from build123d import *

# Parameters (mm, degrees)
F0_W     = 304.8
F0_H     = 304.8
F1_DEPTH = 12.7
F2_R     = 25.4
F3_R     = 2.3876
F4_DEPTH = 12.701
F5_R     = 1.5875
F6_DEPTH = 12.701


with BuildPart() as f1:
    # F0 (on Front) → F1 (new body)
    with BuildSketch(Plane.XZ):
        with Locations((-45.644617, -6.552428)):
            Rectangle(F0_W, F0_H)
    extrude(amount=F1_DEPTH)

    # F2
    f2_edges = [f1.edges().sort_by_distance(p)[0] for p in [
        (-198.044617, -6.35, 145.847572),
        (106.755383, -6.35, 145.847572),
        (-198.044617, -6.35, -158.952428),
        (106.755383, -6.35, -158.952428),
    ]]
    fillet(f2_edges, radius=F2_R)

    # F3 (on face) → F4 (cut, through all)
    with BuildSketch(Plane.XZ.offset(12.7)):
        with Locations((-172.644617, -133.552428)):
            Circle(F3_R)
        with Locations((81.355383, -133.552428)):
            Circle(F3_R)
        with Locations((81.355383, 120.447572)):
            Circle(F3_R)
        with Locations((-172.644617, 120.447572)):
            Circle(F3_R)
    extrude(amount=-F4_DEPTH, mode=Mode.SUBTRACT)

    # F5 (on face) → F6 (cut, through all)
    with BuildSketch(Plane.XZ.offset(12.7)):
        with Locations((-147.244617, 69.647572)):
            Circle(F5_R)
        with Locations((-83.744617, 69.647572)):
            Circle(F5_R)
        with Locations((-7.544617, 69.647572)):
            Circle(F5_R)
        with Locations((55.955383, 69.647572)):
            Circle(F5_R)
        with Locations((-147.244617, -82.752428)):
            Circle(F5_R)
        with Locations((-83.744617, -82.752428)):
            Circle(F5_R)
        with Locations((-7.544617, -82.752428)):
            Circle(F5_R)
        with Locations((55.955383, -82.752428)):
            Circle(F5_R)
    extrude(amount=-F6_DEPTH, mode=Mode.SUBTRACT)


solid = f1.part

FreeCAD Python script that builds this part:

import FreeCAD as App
import Part
import Sketcher
Q = App.Units.Quantity


def edges_at(feature, points):
    """Names of the edges that pass closest to the given points."""
    edges = feature.Shape.Edges
    near = lambda p: min(range(len(edges)), key=lambda i: edges[i].distToShape(Part.Vertex(*p))[0])
    return sorted({f"Edge{near(p) + 1}" for p in points})

doc = App.newDocument("Part")
body = doc.addObject("PartDesign::Body", "Body")

# Sketch on XZ plane
sketch1 = body.newObject("Sketcher::SketchObject", "Sketch")
sketch1.AttachmentSupport = (doc.getObject("XZ_Plane"), [""])
sketch1.MapMode = "FlatFace"
sketch1.addGeometry([
    Part.LineSegment(App.Vector(-198.044617, 145.847572, 0), App.Vector(-198.044617, -158.952428, 0)),
    Part.LineSegment(App.Vector(-198.044617, -158.952428, 0), App.Vector(106.755383, -158.952428, 0)),
    Part.LineSegment(App.Vector(106.755383, -158.952428, 0), App.Vector(106.755383, 145.847572, 0)),
    Part.LineSegment(App.Vector(106.755383, 145.847572, 0), App.Vector(-198.044617, 145.847572, 0)),
], False)
sketch1.addConstraint([
    Sketcher.Constraint("Coincident", 0, 2, 1, 1),
    Sketcher.Constraint("Coincident", 1, 2, 2, 1),
    Sketcher.Constraint("Coincident", 2, 2, 3, 1),
    Sketcher.Constraint("Coincident", 3, 2, 0, 1),
    Sketcher.Constraint("Vertical", 0),
    Sketcher.Constraint("Horizontal", 1),
    Sketcher.Constraint("Vertical", 2),
    Sketcher.Constraint("Horizontal", 3),
    Sketcher.Constraint("Equal", 3, 0),
    Sketcher.Constraint("DistanceX", 1, 1, 1, 2, Q("12 in")),
    Sketcher.Constraint("DistanceY", 0, 2, -1, 1, Q("158.952428 mm")),
    Sketcher.Constraint("DistanceX", 0, 2, -1, 1, Q("198.044617 mm")),
])
pad1 = body.newObject("PartDesign::Pad", "Pad")
pad1.Profile = sketch1
pad1.Length = Q("0.5 in")
doc.recompute()

fillet = body.newObject("PartDesign::Fillet", "Fillet")
fillet.Base = (pad1, edges_at(pad1, [
    (-198.045, -6.35, 145.848),
    (106.755, -6.35, 145.848),
    (-198.045, -6.35, -158.952),
    (106.755, -6.35, -158.952),
]))
fillet.Radius = Q("1 in")

# Sketch on XZ plane
sketch2 = body.newObject("Sketcher::SketchObject", "Sketch001")
sketch2.AttachmentSupport = (doc.getObject("XZ_Plane"), [""])
sketch2.MapMode = "FlatFace"
sketch2.AttachmentOffset = App.Placement(App.Vector(0, 0, 0.5 * 25.4), App.Rotation())
sketch2.addGeometry([
    Part.Circle(App.Vector(-172.644617, -133.552428, 0), App.Vector(0, 0, 1), 2.3876),
    Part.Circle(App.Vector(81.355383, -133.552428, 0), App.Vector(0, 0, 1), 2.3876),
    Part.Circle(App.Vector(81.355383, 120.447572, 0), App.Vector(0, 0, 1), 2.3876),
    Part.Circle(App.Vector(-172.644617, 120.447572, 0), App.Vector(0, 0, 1), 2.3876),
], False)
sketch2.addConstraint([
    Sketcher.Constraint("Equal", 0, 1),
    Sketcher.Constraint("Equal", 1, 2),
    Sketcher.Constraint("Equal", 2, 3),
    Sketcher.Constraint("Horizontal", 0, 3, 1, 3),
    Sketcher.Constraint("Horizontal", 2, 3, 3, 3),
    Sketcher.Constraint("Vertical", 1, 3, 2, 3),
    Sketcher.Constraint("Vertical", 0, 3, 3, 3),
    Sketcher.Constraint("Diameter", 0, Q("0.188 in")),
    Sketcher.Constraint("DistanceX", 0, 3, 1, 3, Q("10 in")),
    Sketcher.Constraint("DistanceY", 1, 3, 2, 3, Q("10 in")),
    Sketcher.Constraint("DistanceY", 0, 3, -1, 1, Q("133.552428 mm")),
    Sketcher.Constraint("DistanceX", 0, 3, -1, 1, Q("172.644617 mm")),
])
pocket1 = body.newObject("PartDesign::Pocket", "Pocket")
pocket1.Profile = sketch2
pocket1.Type = "ThroughAll"

# Sketch on XZ plane
sketch3 = body.newObject("Sketcher::SketchObject", "Sketch002")
sketch3.AttachmentSupport = (doc.getObject("XZ_Plane"), [""])
sketch3.MapMode = "FlatFace"
sketch3.AttachmentOffset = App.Placement(App.Vector(0, 0, 0.5 * 25.4), App.Rotation())
sketch3.addGeometry([
    Part.Circle(App.Vector(-147.244617, 69.647572, 0), App.Vector(0, 0, 1), 1.5875),  # 0
    Part.Circle(App.Vector(-83.744617, 69.647572, 0), App.Vector(0, 0, 1), 1.5875),  # 1
    Part.Circle(App.Vector(-7.544617, 69.647572, 0), App.Vector(0, 0, 1), 1.5875),  # 2
    Part.Circle(App.Vector(55.955383, 69.647572, 0), App.Vector(0, 0, 1), 1.5875),  # 3
    Part.Circle(App.Vector(-147.244617, -82.752428, 0), App.Vector(0, 0, 1), 1.5875),  # 4
    Part.Circle(App.Vector(-83.744617, -82.752428, 0), App.Vector(0, 0, 1), 1.5875),  # 5
    Part.Circle(App.Vector(-7.544617, -82.752428, 0), App.Vector(0, 0, 1), 1.5875),  # 6
    Part.Circle(App.Vector(55.955383, -82.752428, 0), App.Vector(0, 0, 1), 1.5875),  # 7
], False)
sketch3.addConstraint([
    Sketcher.Constraint("Equal", 0, 1),
    Sketcher.Constraint("Equal", 1, 2),
    Sketcher.Constraint("Equal", 2, 3),
    Sketcher.Constraint("Equal", 3, 4),
    Sketcher.Constraint("Equal", 4, 5),
    Sketcher.Constraint("Equal", 5, 6),
    Sketcher.Constraint("Equal", 6, 7),
    Sketcher.Constraint("Horizontal", 0, 3, 1, 3),
    Sketcher.Constraint("Horizontal", 1, 3, 2, 3),
    Sketcher.Constraint("Horizontal", 2, 3, 3, 3),
    Sketcher.Constraint("Horizontal", 4, 3, 5, 3),
    Sketcher.Constraint("Horizontal", 5, 3, 6, 3),
    Sketcher.Constraint("Horizontal", 6, 3, 7, 3),
    Sketcher.Constraint("Vertical", 0, 3, 4, 3),
    Sketcher.Constraint("Vertical", 1, 3, 5, 3),
    Sketcher.Constraint("Vertical", 2, 3, 6, 3),
    Sketcher.Constraint("Vertical", 3, 3, 7, 3),
    Sketcher.Constraint("Diameter", 0, Q("0.125 in")),
    Sketcher.Constraint("DistanceX", 1, 3, 2, 3, Q("3 in")),
    Sketcher.Constraint("DistanceX", 0, 3, 3, 3, Q("8 in")),
    Sketcher.Constraint("DistanceY", 4, 3, 0, 3, Q("6 in")),
    Sketcher.Constraint("DistanceX", 0, 3, 1, 3, Q("2.5 in")),
    Sketcher.Constraint("DistanceY", -1, 1, 0, 3, Q("69.647572 mm")),
    Sketcher.Constraint("DistanceX", 0, 3, -1, 1, Q("147.244617 mm")),
])
pocket2 = body.newObject("PartDesign::Pocket", "Pocket001")
pocket2.Profile = sketch3
pocket2.Type = "ThroughAll"

doc.recompute()
